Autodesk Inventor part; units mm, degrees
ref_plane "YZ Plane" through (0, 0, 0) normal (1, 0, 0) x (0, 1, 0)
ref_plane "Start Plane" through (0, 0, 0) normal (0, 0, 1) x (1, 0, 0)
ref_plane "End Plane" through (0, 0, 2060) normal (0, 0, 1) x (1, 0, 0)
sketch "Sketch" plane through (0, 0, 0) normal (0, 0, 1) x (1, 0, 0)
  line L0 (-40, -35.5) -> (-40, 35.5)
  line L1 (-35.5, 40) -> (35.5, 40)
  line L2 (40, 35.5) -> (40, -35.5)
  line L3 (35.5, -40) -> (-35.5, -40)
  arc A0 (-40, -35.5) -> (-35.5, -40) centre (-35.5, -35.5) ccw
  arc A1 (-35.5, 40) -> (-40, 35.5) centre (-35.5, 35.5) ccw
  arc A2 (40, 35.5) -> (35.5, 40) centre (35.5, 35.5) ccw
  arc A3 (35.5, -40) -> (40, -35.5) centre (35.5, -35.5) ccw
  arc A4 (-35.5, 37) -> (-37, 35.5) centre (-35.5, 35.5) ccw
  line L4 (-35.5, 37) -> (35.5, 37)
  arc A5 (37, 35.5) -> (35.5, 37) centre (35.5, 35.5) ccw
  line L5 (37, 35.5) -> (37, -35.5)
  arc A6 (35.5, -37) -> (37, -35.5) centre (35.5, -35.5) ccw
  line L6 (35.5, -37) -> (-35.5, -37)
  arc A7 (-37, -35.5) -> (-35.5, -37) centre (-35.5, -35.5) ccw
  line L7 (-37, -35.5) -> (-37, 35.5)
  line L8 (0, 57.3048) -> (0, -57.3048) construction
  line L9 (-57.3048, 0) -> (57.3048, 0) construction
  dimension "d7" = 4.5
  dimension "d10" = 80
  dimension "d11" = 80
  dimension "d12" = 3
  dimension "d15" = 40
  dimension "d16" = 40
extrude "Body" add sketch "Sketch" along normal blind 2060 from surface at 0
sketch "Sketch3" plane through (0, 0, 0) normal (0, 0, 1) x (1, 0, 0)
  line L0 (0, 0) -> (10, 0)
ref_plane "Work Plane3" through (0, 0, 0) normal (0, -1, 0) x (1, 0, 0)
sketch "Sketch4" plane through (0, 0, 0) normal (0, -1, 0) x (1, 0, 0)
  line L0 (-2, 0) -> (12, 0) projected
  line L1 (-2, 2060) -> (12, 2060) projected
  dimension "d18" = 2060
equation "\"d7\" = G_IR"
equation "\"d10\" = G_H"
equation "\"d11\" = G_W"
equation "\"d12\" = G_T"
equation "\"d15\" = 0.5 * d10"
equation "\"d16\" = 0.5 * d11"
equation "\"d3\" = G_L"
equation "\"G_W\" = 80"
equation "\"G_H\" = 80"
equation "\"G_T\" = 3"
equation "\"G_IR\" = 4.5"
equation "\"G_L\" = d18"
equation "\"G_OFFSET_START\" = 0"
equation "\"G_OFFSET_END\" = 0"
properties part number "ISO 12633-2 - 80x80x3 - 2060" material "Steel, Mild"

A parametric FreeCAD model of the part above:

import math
import FreeCAD as App
import Part
import Sketcher
from FreeCAD import Vector
Q = App.Units.Quantity

doc = App.newDocument("Part")
body = doc.addObject("PartDesign::Body", "Body")

# Sketch on XY plane
sketch1 = body.newObject("Sketcher::SketchObject", "Sketch")
sketch1.AttachmentSupport = (doc.getObject("XY_Plane"), [""])
sketch1.MapMode = "FlatFace"
sketch1.addGeometry(Part.LineSegment(Vector(-40, 35.5, 0), Vector(-40, -35.5, 0)), False)
sketch1.addGeometry(Part.ArcOfCircle(Part.Circle(Vector(-35.5, -35.5, 0), Vector(0, 0, 1), 4.5), math.radians(180), math.radians(270)), False)
sketch1.addGeometry(Part.LineSegment(Vector(-35.5, -40, 0), Vector(35.5, -40, 0)), False)
sketch1.addGeometry(Part.ArcOfCircle(Part.Circle(Vector(35.5, -35.5, 0), Vector(0, 0, 1), 4.5), math.radians(-90), math.radians(0)), False)
sketch1.addGeometry(Part.LineSegment(Vector(40, -35.5, 0), Vector(40, 35.5, 0)), False)
sketch1.addGeometry(Part.ArcOfCircle(Part.Circle(Vector(35.5, 35.5, 0), Vector(0, 0, 1), 4.5), math.radians(0), math.radians(90)), False)
sketch1.addGeometry(Part.LineSegment(Vector(35.5, 40, 0), Vector(-35.5, 40, 0)), False)
sketch1.addGeometry(Part.ArcOfCircle(Part.Circle(Vector(-35.5, 35.5, 0), Vector(0, 0, 1), 4.5), math.radians(90), math.radians(180)), False)
sketch1.addGeometry(Part.ArcOfCircle(Part.Circle(Vector(-35.5, 35.5, 0), Vector(0, 0, 1), 1.5), math.radians(90), math.radians(180)), False)
sketch1.addGeometry(Part.LineSegment(Vector(-35.5, 37, 0), Vector(35.5, 37, 0)), False)
sketch1.addGeometry(Part.ArcOfCircle(Part.Circle(Vector(35.5, 35.5, 0), Vector(0, 0, 1), 1.5), math.radians(0), math.radians(90)), False)
sketch1.addGeometry(Part.LineSegment(Vector(37, 35.5, 0), Vector(37, -35.5, 0)), False)
sketch1.addGeometry(Part.ArcOfCircle(Part.Circle(Vector(35.5, -35.5, 0), Vector(0, 0, 1), 1.5), math.radians(-90), math.radians(0)), False)
sketch1.addGeometry(Part.LineSegment(Vector(35.5, -37, 0), Vector(-35.5, -37, 0)), False)
sketch1.addGeometry(Part.ArcOfCircle(Part.Circle(Vector(-35.5, -35.5, 0), Vector(0, 0, 1), 1.5), math.radians(180), math.radians(270)), False)
sketch1.addGeometry(Part.LineSegment(Vector(-37, -35.5, 0), Vector(-37, 35.5, 0)), False)
sketch1.addConstraint(Sketcher.Constraint("Tangent", 0, 2, 1, 1))
sketch1.addConstraint(Sketcher.Constraint("Tangent", 1, 2, 2, 1))
sketch1.addConstraint(Sketcher.Constraint("Tangent", 2, 2, 3, 1))
sketch1.addConstraint(Sketcher.Constraint("Tangent", 3, 2, 4, 1))
sketch1.addConstraint(Sketcher.Constraint("Tangent", 4, 2, 5, 1))
sketch1.addConstraint(Sketcher.Constraint("Tangent", 5, 2, 6, 1))
sketch1.addConstraint(Sketcher.Constraint("Tangent", 6, 2, 7, 1))
sketch1.addConstraint(Sketcher.Constraint("Tangent", 7, 2, 0, 1))
sketch1.addConstraint(Sketcher.Constraint("Tangent", 8, 1, 9, 1))
sketch1.addConstraint(Sketcher.Constraint("Tangent", 9, 2, 10, 2))
sketch1.addConstraint(Sketcher.Constraint("Tangent", 10, 1, 11, 1))
sketch1.addConstraint(Sketcher.Constraint("Tangent", 11, 2, 12, 2))
sketch1.addConstraint(Sketcher.Constraint("Tangent", 12, 1, 13, 1))
sketch1.addConstraint(Sketcher.Constraint("Tangent", 13, 2, 14, 2))
sketch1.addConstraint(Sketcher.Constraint("Tangent", 14, 1, 15, 1))
sketch1.addConstraint(Sketcher.Constraint("Tangent", 15, 2, 8, 2))
sketch1.addConstraint(Sketcher.Constraint("Vertical", 0))
sketch1.addConstraint(Sketcher.Constraint("Horizontal", 2))
sketch1.addConstraint(Sketcher.Constraint("Vertical", 4))
sketch1.addConstraint(Sketcher.Constraint("Horizontal", 6))
sketch1.addConstraint(Sketcher.Constraint("Horizontal", 9))
sketch1.addConstraint(Sketcher.Constraint("Vertical", 11))
sketch1.addConstraint(Sketcher.Constraint("Horizontal", 13))
sketch1.addConstraint(Sketcher.Constraint("Vertical", 15))
sketch1.addConstraint(Sketcher.Constraint("Coincident", 8, 3, 7, 3))
sketch1.addConstraint(Sketcher.Constraint("Coincident", 10, 3, 5, 3))
sketch1.addConstraint(Sketcher.Constraint("Coincident", 12, 3, 3, 3))
sketch1.addConstraint(Sketcher.Constraint("Equal", 1, 3))
sketch1.addConstraint(Sketcher.Constraint("Equal", 3, 5))
sketch1.addConstraint(Sketcher.Constraint("Equal", 5, 7))
sketch1.addConstraint(Sketcher.Constraint("Equal", 12, 14))
sketch1.addConstraint(Sketcher.Constraint("Symmetric", 1, 3, 5, 3, -1, 1))
sketch1.addConstraint(Sketcher.Constraint("Equal", 13, 0))
sketch1.addConstraint(Sketcher.Constraint("Radius", 1, Q("4.5 mm")))
sketch1.addConstraint(Sketcher.Constraint("Radius", 8, Q("1.5 mm")))
sketch1.addConstraint(Sketcher.Constraint("DistanceX", 0, 2, -1, 1, Q("40 mm")))
pad1 = body.newObject("PartDesign::Pad", "Pad")
pad1.Profile = sketch1
pad1.Length = 2060

doc.recompute()
